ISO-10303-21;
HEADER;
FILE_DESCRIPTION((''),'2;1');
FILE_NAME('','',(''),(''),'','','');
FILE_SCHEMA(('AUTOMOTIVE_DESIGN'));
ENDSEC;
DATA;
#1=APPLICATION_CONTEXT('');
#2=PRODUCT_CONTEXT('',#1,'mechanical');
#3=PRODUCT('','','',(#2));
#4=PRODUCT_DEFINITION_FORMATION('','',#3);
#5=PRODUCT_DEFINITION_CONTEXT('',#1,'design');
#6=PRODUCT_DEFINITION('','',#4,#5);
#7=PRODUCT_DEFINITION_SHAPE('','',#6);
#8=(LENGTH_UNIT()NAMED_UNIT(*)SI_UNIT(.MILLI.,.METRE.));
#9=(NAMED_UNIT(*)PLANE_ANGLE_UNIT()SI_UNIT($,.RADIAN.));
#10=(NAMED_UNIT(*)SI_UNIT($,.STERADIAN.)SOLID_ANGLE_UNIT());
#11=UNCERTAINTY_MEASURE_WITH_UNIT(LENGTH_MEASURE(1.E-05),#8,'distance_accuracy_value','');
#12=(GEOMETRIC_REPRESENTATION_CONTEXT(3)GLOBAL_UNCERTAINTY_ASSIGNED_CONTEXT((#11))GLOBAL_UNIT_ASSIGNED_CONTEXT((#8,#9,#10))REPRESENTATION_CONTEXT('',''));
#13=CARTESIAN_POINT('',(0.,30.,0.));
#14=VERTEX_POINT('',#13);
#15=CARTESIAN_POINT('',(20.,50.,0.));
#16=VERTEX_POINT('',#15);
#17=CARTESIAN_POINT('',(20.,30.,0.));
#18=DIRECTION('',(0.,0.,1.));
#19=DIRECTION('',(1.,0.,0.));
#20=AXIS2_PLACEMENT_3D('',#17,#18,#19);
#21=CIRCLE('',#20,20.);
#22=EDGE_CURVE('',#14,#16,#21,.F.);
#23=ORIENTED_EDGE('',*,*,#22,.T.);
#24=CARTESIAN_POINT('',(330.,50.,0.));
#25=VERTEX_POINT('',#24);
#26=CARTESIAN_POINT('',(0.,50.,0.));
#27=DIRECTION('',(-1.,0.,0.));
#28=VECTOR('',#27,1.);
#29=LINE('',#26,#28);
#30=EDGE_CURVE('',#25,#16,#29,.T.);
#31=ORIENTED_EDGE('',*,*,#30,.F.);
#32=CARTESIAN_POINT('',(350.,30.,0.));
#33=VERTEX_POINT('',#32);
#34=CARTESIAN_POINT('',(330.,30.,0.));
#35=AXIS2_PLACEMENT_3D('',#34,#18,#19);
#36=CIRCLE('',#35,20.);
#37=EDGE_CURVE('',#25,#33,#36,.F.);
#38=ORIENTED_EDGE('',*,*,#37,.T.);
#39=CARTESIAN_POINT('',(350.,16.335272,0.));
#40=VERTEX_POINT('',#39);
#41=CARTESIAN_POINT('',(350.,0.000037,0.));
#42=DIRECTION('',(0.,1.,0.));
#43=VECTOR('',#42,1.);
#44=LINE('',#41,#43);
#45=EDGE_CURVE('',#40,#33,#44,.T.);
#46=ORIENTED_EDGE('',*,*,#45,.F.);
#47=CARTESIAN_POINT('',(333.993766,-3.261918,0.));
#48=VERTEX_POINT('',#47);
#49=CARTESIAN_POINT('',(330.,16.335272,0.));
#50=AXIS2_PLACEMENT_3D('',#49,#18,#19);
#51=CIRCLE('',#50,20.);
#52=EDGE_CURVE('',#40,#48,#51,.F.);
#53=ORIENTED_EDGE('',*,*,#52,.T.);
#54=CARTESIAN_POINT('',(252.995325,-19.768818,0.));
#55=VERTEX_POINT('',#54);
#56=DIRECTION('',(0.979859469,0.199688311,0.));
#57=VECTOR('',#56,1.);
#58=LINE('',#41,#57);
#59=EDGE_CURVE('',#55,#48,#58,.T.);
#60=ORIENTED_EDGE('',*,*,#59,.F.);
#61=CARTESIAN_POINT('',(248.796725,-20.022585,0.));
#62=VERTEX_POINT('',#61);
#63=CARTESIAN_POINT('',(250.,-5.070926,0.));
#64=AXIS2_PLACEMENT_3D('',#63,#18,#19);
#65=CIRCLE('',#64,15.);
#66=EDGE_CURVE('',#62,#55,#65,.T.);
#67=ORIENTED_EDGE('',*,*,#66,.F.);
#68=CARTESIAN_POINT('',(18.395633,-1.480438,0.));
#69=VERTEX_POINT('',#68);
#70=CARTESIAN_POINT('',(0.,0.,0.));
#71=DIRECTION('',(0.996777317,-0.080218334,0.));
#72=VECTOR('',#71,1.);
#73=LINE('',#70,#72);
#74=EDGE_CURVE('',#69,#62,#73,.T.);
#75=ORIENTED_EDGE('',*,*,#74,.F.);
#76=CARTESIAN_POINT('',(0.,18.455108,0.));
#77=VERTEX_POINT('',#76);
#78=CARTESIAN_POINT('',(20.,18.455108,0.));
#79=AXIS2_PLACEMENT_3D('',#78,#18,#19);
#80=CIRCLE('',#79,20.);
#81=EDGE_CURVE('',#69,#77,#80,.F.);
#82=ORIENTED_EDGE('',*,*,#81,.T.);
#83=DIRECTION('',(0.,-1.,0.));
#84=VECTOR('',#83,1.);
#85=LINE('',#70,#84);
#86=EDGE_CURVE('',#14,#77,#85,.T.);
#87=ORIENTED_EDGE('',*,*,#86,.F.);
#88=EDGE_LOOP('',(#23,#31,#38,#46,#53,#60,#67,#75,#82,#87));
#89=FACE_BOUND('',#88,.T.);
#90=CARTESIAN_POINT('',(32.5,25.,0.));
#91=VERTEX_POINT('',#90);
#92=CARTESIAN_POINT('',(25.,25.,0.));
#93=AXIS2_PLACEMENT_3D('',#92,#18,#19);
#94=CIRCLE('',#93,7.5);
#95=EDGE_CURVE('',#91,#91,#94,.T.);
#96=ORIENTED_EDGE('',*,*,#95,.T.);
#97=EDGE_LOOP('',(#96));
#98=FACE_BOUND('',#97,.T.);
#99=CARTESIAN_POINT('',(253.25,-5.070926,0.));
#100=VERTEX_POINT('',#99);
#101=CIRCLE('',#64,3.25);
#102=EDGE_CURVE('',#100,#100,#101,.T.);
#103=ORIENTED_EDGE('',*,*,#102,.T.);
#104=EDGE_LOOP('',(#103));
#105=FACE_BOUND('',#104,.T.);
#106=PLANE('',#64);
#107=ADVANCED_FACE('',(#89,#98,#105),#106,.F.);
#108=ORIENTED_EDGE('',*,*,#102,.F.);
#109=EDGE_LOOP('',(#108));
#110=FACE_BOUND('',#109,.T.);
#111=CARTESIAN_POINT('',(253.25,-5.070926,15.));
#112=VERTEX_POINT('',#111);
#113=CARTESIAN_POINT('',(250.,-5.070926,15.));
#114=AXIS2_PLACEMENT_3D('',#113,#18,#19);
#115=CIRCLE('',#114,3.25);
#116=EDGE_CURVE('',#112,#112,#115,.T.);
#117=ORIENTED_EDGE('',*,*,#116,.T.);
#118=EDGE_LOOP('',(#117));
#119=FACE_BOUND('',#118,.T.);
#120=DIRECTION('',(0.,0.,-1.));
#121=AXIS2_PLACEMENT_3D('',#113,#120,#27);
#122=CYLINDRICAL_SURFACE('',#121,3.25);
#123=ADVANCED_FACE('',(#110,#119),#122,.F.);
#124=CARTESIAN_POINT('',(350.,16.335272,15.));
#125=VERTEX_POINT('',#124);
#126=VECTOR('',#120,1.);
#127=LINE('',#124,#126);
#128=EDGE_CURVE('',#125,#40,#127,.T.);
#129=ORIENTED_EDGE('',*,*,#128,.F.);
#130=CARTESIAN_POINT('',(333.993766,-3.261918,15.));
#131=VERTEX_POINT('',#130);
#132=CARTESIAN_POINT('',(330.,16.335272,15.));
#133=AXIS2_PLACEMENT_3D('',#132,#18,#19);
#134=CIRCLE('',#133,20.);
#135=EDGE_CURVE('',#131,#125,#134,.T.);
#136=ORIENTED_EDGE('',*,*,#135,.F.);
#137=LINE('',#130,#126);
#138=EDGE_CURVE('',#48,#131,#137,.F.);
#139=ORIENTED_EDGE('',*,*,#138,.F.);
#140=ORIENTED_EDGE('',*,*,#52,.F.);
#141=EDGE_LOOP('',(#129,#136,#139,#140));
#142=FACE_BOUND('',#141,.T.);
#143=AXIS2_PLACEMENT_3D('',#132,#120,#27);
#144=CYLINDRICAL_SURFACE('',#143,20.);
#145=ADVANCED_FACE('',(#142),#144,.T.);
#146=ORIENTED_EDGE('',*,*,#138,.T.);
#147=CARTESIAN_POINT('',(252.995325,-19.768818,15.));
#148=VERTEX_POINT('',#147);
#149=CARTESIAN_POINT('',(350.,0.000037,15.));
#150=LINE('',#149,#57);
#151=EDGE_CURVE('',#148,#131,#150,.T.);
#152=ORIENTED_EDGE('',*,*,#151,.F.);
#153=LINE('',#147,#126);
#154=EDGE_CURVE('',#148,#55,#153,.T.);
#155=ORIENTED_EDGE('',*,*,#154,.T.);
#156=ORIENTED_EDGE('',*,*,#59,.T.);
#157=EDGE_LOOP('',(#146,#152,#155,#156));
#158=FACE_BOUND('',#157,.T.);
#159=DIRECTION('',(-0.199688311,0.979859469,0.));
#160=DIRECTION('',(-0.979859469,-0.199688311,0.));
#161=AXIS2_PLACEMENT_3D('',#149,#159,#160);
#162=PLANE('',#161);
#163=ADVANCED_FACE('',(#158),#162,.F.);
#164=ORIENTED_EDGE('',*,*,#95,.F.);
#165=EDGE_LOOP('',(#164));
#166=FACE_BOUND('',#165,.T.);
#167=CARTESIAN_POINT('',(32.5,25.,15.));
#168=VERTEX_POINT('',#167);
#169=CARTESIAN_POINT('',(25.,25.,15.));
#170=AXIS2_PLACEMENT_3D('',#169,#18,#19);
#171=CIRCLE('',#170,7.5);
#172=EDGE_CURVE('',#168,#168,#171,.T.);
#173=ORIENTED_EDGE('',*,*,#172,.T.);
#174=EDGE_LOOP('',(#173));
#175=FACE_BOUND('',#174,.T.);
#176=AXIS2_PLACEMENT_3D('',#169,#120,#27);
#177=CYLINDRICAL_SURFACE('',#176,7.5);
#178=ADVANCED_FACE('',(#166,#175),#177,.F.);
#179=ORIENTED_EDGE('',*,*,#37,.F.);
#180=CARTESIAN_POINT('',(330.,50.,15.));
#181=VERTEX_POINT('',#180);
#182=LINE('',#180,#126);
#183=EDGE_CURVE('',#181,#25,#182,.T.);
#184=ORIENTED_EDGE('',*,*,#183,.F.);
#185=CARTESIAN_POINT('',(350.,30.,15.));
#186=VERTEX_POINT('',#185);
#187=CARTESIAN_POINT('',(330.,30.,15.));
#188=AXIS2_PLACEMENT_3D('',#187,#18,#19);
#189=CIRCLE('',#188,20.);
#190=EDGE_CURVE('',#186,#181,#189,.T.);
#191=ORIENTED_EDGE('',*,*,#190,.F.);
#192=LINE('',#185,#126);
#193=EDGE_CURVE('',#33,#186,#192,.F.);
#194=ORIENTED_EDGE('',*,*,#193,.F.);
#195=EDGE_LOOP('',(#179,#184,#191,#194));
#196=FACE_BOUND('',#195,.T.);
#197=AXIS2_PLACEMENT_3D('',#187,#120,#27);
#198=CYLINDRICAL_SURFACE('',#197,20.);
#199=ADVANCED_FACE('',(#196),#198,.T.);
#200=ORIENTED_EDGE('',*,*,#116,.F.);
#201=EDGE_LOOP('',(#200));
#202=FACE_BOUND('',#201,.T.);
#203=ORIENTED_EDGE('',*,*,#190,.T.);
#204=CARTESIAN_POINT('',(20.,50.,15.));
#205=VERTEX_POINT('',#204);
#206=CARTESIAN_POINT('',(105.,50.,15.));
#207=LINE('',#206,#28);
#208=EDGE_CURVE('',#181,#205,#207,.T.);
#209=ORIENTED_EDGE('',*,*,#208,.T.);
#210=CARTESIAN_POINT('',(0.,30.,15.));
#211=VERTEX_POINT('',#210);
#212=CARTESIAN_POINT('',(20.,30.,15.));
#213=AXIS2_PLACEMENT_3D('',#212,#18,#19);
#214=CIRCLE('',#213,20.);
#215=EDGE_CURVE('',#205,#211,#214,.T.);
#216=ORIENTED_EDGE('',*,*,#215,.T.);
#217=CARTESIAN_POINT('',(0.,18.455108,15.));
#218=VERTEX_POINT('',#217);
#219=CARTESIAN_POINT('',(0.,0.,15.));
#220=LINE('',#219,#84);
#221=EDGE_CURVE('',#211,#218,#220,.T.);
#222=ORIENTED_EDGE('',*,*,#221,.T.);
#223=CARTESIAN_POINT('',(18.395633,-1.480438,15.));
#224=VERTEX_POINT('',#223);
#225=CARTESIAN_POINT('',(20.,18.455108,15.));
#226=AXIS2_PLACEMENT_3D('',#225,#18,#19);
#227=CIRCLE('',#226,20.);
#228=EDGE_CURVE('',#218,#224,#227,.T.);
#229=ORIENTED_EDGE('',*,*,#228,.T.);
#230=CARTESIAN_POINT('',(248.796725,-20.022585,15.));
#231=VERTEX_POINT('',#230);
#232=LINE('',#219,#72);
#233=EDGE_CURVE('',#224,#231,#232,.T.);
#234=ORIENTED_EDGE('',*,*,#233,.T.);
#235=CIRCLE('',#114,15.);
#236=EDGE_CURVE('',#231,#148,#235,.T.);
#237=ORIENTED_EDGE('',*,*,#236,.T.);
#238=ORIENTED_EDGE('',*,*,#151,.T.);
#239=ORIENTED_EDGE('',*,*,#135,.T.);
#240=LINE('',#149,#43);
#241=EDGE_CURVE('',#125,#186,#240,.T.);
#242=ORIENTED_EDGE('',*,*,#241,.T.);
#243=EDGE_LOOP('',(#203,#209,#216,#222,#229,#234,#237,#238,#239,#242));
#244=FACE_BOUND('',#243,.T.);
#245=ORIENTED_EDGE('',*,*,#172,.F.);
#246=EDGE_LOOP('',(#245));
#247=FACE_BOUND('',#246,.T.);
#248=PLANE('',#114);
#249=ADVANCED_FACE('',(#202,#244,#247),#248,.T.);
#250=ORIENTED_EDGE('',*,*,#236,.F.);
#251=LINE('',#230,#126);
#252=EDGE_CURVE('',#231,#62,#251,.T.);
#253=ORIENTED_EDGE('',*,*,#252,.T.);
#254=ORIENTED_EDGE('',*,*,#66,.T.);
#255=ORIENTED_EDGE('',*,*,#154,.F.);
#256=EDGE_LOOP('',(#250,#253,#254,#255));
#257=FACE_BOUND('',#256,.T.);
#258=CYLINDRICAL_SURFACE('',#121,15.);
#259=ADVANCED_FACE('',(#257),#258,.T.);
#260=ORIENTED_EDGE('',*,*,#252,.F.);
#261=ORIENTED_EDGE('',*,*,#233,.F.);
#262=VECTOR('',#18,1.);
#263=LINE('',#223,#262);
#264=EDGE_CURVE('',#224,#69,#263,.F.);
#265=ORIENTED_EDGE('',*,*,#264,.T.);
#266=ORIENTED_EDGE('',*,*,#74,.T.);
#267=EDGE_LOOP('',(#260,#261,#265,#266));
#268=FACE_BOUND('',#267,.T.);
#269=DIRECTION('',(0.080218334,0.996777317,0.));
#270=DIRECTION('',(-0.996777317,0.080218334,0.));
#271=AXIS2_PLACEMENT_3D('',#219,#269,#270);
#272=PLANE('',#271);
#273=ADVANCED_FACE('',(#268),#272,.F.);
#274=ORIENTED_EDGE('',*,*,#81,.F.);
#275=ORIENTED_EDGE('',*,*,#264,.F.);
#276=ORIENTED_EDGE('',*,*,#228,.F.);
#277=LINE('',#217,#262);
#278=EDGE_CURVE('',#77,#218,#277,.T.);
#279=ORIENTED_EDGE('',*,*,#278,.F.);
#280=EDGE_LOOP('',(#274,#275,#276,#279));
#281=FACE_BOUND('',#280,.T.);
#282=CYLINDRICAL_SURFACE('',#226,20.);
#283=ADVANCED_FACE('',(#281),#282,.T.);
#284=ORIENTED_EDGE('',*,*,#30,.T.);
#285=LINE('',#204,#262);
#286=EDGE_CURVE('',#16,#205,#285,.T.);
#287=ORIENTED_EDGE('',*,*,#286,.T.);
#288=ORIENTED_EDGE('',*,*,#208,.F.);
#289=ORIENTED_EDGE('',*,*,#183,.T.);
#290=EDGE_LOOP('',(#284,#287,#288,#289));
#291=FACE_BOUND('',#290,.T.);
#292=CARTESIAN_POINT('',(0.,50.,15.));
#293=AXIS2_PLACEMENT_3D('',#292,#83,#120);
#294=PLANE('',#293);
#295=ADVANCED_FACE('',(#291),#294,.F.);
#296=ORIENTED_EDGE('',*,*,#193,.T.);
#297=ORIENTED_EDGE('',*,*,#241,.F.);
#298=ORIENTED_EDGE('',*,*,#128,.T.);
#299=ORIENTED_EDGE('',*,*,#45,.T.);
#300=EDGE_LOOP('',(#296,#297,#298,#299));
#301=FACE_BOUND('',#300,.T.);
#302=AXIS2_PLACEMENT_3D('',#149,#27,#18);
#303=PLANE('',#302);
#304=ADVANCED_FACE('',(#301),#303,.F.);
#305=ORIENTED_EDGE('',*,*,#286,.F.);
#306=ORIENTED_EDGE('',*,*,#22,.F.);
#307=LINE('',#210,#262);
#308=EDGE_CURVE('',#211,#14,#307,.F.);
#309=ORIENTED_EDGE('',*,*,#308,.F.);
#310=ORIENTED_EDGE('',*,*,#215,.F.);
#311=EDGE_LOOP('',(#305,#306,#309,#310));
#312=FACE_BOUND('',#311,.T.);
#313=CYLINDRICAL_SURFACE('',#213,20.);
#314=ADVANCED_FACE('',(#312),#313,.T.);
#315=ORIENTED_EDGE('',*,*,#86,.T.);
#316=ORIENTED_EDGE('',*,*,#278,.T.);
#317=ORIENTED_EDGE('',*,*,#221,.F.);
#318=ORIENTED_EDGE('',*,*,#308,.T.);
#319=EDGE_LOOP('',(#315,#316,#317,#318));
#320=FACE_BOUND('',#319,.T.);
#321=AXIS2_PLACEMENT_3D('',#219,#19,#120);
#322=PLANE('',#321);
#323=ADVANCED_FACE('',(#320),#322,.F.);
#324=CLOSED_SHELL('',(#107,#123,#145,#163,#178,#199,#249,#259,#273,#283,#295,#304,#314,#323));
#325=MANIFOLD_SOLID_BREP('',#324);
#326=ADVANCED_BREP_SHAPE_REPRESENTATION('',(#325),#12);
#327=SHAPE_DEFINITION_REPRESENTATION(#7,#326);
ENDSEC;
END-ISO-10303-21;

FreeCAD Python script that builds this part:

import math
import FreeCAD as App
import Part
import Sketcher


def edges_at(feature, points):
    """Names of the edges that pass closest to the given points."""
    edges = feature.Shape.Edges
    near = lambda p: min(range(len(edges)), key=lambda i: edges[i].distToShape(Part.Vertex(*p))[0])
    return sorted({f"Edge{near(p) + 1}" for p in points})

doc = App.newDocument("Part")
body = doc.addObject("PartDesign::Body", "Body")

# Sketch on XY plane
sketch1 = body.newObject("Sketcher::SketchObject", "Sketch")
sketch1.AttachmentSupport = (doc.getObject("XY_Plane"), [""])
sketch1.MapMode = "FlatFace"
sketch1.addGeometry([
    Part.LineSegment(App.Vector(350, 0.000037, 0), App.Vector(350, 50, 0)),  # 0
    Part.LineSegment(App.Vector(350, 50, 0), App.Vector(0, 50, 0)),  # 1
    Part.LineSegment(App.Vector(0, 50, 0), App.Vector(0, 0, 0)),  # 2
    Part.LineSegment(App.Vector(0, 0, 0), App.Vector(248.796725, -20.022585, 0)),  # 3
    Part.ArcOfCircle(Part.Circle(App.Vector(250, -5.070926, 0), App.Vector(0, 0, 1), 15), math.radians(-94.601116), math.radians(-78.481267)),  # 4
    Part.LineSegment(App.Vector(252.995325, -19.768818, 0), App.Vector(350, 0.000037, 0)),  # 5
    Part.Circle(App.Vector(250, -5.070926, 0), App.Vector(0, 0, 1), 3.25),  # 6
    Part.Circle(App.Vector(25, 25, 0), App.Vector(0, 0, 1), 7.5),  # 7
], False)
sketch1.addConstraint([
    Sketcher.Constraint("Coincident", 0, 2, 1, 1),
    Sketcher.Constraint("Coincident", 1, 2, 2, 1),
    Sketcher.Constraint("Coincident", 2, 2, 3, 1),
    Sketcher.Constraint("Coincident", 3, 2, 4, 1),
    Sketcher.Constraint("Coincident", 4, 2, 5, 1),
    Sketcher.Constraint("Coincident", 5, 2, 0, 1),
    Sketcher.Constraint("Vertical", 0),
    Sketcher.Constraint("Horizontal", 1),
    Sketcher.Constraint("Vertical", 2),
    Sketcher.Constraint("Coincident", 2, 2, -1, 1),
    Sketcher.Constraint("Coincident", 6, 3, 4, 3),
    Sketcher.Constraint("Diameter", 7, 15.0),
    Sketcher.Constraint("Radius", 4, 15.0),
    Sketcher.Constraint("Diameter", 6, 6.5),
    Sketcher.Constraint("DistanceX", 1, 2, 1, 1, 350.0),
    Sketcher.Constraint("DistanceY", 2, 2, 2, 1, 50.0),
    Sketcher.Constraint("DistanceX", -1, 1, 4, 3, 250.0),
    Sketcher.Constraint("DistanceX", -1, 1, 7, 3, 25.0),
    Sketcher.Constraint("DistanceY", -1, 1, 7, 3, 25.0),
    Sketcher.Constraint("DistanceX", 3, 2, 4, 2, 4.1986),
    Sketcher.Constraint("Distance", 3, 249.60111),
    Sketcher.Constraint("Distance", 5, 98.998559),
    Sketcher.Constraint("DistanceY", 0, 1, 0, 2, 49.999963),
])
pad1 = body.newObject("PartDesign::Pad", "Pad")
pad1.Profile = sketch1
pad1.Length = 15
doc.recompute()

fillet = body.newObject("PartDesign::Fillet", "Fillet")
fillet.Base = (pad1, edges_at(pad1, [(0, 50, 7.5)]))
fillet.Radius = 20
doc.recompute()

fillet2 = body.newObject("PartDesign::Fillet", "Fillet001")
fillet2.Base = (fillet, edges_at(fillet, [(0, 0, 7.5)]))
fillet2.Radius = 20
doc.recompute()

fillet3 = body.newObject("PartDesign::Fillet", "Fillet002")
fillet3.Base = (fillet2, edges_at(fillet2, [(350, 50, 7.5)]))
fillet3.Radius = 20
doc.recompute()

fillet4 = body.newObject("PartDesign::Fillet", "Fillet003")
fillet4.Base = (fillet3, edges_at(fillet3, [(350, 0, 7.5)]))
fillet4.Radius = 20

doc.recompute()
